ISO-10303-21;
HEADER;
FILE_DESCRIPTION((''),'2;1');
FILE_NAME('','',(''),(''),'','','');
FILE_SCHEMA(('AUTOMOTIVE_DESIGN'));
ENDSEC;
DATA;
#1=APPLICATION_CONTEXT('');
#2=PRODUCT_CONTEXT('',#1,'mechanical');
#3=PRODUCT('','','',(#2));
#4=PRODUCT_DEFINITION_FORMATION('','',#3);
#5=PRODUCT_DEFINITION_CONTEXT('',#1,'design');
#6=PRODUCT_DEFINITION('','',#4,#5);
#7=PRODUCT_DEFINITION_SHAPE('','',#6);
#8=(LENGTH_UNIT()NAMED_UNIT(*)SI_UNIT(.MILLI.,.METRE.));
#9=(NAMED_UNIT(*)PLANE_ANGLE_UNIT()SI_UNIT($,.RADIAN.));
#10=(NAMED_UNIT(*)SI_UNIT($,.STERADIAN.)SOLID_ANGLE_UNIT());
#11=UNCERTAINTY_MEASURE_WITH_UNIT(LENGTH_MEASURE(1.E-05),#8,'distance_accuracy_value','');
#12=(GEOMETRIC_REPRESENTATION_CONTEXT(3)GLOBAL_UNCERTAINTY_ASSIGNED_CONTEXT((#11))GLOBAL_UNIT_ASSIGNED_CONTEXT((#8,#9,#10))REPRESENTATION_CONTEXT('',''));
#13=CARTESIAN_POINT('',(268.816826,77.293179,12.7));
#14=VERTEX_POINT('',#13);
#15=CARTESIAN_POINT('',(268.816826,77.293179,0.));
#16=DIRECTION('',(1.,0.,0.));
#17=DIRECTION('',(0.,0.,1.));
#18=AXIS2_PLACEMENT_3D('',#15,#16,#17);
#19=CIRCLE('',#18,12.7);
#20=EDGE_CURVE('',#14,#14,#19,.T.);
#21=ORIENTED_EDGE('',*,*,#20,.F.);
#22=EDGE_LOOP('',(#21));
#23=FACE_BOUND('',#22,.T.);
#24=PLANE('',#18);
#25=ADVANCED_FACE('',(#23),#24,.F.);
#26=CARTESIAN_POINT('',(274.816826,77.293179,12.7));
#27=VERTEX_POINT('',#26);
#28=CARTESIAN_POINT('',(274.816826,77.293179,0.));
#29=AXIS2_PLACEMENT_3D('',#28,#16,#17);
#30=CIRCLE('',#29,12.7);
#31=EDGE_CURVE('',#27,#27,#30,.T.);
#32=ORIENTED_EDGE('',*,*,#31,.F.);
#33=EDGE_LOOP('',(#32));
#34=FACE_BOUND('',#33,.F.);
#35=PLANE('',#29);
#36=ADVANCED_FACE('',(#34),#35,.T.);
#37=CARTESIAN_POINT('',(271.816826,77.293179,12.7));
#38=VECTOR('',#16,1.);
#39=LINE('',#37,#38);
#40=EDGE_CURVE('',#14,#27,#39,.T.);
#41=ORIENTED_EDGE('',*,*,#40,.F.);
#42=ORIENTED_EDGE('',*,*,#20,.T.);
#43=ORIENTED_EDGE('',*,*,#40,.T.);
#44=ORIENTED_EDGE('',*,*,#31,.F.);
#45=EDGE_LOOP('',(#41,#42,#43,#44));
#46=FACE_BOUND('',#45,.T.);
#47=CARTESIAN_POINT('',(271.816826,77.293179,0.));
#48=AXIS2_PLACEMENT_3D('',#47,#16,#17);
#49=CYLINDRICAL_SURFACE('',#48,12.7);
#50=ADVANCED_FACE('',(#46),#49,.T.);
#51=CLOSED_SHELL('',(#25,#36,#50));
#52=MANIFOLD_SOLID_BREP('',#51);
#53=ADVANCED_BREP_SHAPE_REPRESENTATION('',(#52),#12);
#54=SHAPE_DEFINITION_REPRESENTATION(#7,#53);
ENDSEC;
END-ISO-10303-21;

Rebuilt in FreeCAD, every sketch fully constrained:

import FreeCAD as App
import Part
import Sketcher
from FreeCAD import Vector
Q = App.Units.Quantity

doc = App.newDocument("Part")
body = doc.addObject("PartDesign::Body", "Body")

# Sketch on XY plane
sketch1 = body.newObject("Sketcher::SketchObject", "Sketch")
sketch1.AttachmentSupport = (doc.getObject("XY_Plane"), [""])
sketch1.MapMode = "FlatFace"
sketch1.addGeometry([
    Part.LineSegment(Vector(269, 90, 0), Vector(269, 77, 0)),
    Part.LineSegment(Vector(269, 77, 0), Vector(275, 77, 0)),
    Part.LineSegment(Vector(275, 77, 0), Vector(275, 90, 0)),
    Part.LineSegment(Vector(275, 90, 0), Vector(269, 90, 0)),
], False)
sketch1.addGeometry(Part.LineSegment(Vector(269, 77, 0), Vector(275, 77, 0)), True)  # axis
sketch1.addConstraint([
    Sketcher.Constraint("Coincident", 0, 2, 1, 1),
    Sketcher.Constraint("Coincident", 1, 2, 2, 1),
    Sketcher.Constraint("Coincident", 2, 2, 3, 1),
    Sketcher.Constraint("Coincident", 3, 2, 0, 1),
    Sketcher.Constraint("Vertical", 0),
    Sketcher.Constraint("Horizontal", 1),
    Sketcher.Constraint("Vertical", 2),
    Sketcher.Constraint("Horizontal", 3),
    Sketcher.Constraint("Horizontal", 4),
    Sketcher.Constraint("Coincident", 4, 1, 0, 2),
    Sketcher.Constraint("Vertical", 2, 2, 4, 2),
    Sketcher.Constraint("DistanceX", 1, 1, 1, 2, Q("6 mm")),
    Sketcher.Constraint("DistanceY", 0, 2, 0, 1, Q("12.7 mm")),
    Sketcher.Constraint("DistanceY", -1, 1, 0, 2, Q("77.293179 mm")),
    Sketcher.Constraint("DistanceX", -1, 1, 0, 2, Q("268.816826 mm")),
])
revolution = body.newObject("PartDesign::Revolution", "Revolution")
revolution.Profile = sketch1
revolution.ReferenceAxis = (sketch1, ["Axis0"])
revolution.Angle = 360

doc.recompute()
